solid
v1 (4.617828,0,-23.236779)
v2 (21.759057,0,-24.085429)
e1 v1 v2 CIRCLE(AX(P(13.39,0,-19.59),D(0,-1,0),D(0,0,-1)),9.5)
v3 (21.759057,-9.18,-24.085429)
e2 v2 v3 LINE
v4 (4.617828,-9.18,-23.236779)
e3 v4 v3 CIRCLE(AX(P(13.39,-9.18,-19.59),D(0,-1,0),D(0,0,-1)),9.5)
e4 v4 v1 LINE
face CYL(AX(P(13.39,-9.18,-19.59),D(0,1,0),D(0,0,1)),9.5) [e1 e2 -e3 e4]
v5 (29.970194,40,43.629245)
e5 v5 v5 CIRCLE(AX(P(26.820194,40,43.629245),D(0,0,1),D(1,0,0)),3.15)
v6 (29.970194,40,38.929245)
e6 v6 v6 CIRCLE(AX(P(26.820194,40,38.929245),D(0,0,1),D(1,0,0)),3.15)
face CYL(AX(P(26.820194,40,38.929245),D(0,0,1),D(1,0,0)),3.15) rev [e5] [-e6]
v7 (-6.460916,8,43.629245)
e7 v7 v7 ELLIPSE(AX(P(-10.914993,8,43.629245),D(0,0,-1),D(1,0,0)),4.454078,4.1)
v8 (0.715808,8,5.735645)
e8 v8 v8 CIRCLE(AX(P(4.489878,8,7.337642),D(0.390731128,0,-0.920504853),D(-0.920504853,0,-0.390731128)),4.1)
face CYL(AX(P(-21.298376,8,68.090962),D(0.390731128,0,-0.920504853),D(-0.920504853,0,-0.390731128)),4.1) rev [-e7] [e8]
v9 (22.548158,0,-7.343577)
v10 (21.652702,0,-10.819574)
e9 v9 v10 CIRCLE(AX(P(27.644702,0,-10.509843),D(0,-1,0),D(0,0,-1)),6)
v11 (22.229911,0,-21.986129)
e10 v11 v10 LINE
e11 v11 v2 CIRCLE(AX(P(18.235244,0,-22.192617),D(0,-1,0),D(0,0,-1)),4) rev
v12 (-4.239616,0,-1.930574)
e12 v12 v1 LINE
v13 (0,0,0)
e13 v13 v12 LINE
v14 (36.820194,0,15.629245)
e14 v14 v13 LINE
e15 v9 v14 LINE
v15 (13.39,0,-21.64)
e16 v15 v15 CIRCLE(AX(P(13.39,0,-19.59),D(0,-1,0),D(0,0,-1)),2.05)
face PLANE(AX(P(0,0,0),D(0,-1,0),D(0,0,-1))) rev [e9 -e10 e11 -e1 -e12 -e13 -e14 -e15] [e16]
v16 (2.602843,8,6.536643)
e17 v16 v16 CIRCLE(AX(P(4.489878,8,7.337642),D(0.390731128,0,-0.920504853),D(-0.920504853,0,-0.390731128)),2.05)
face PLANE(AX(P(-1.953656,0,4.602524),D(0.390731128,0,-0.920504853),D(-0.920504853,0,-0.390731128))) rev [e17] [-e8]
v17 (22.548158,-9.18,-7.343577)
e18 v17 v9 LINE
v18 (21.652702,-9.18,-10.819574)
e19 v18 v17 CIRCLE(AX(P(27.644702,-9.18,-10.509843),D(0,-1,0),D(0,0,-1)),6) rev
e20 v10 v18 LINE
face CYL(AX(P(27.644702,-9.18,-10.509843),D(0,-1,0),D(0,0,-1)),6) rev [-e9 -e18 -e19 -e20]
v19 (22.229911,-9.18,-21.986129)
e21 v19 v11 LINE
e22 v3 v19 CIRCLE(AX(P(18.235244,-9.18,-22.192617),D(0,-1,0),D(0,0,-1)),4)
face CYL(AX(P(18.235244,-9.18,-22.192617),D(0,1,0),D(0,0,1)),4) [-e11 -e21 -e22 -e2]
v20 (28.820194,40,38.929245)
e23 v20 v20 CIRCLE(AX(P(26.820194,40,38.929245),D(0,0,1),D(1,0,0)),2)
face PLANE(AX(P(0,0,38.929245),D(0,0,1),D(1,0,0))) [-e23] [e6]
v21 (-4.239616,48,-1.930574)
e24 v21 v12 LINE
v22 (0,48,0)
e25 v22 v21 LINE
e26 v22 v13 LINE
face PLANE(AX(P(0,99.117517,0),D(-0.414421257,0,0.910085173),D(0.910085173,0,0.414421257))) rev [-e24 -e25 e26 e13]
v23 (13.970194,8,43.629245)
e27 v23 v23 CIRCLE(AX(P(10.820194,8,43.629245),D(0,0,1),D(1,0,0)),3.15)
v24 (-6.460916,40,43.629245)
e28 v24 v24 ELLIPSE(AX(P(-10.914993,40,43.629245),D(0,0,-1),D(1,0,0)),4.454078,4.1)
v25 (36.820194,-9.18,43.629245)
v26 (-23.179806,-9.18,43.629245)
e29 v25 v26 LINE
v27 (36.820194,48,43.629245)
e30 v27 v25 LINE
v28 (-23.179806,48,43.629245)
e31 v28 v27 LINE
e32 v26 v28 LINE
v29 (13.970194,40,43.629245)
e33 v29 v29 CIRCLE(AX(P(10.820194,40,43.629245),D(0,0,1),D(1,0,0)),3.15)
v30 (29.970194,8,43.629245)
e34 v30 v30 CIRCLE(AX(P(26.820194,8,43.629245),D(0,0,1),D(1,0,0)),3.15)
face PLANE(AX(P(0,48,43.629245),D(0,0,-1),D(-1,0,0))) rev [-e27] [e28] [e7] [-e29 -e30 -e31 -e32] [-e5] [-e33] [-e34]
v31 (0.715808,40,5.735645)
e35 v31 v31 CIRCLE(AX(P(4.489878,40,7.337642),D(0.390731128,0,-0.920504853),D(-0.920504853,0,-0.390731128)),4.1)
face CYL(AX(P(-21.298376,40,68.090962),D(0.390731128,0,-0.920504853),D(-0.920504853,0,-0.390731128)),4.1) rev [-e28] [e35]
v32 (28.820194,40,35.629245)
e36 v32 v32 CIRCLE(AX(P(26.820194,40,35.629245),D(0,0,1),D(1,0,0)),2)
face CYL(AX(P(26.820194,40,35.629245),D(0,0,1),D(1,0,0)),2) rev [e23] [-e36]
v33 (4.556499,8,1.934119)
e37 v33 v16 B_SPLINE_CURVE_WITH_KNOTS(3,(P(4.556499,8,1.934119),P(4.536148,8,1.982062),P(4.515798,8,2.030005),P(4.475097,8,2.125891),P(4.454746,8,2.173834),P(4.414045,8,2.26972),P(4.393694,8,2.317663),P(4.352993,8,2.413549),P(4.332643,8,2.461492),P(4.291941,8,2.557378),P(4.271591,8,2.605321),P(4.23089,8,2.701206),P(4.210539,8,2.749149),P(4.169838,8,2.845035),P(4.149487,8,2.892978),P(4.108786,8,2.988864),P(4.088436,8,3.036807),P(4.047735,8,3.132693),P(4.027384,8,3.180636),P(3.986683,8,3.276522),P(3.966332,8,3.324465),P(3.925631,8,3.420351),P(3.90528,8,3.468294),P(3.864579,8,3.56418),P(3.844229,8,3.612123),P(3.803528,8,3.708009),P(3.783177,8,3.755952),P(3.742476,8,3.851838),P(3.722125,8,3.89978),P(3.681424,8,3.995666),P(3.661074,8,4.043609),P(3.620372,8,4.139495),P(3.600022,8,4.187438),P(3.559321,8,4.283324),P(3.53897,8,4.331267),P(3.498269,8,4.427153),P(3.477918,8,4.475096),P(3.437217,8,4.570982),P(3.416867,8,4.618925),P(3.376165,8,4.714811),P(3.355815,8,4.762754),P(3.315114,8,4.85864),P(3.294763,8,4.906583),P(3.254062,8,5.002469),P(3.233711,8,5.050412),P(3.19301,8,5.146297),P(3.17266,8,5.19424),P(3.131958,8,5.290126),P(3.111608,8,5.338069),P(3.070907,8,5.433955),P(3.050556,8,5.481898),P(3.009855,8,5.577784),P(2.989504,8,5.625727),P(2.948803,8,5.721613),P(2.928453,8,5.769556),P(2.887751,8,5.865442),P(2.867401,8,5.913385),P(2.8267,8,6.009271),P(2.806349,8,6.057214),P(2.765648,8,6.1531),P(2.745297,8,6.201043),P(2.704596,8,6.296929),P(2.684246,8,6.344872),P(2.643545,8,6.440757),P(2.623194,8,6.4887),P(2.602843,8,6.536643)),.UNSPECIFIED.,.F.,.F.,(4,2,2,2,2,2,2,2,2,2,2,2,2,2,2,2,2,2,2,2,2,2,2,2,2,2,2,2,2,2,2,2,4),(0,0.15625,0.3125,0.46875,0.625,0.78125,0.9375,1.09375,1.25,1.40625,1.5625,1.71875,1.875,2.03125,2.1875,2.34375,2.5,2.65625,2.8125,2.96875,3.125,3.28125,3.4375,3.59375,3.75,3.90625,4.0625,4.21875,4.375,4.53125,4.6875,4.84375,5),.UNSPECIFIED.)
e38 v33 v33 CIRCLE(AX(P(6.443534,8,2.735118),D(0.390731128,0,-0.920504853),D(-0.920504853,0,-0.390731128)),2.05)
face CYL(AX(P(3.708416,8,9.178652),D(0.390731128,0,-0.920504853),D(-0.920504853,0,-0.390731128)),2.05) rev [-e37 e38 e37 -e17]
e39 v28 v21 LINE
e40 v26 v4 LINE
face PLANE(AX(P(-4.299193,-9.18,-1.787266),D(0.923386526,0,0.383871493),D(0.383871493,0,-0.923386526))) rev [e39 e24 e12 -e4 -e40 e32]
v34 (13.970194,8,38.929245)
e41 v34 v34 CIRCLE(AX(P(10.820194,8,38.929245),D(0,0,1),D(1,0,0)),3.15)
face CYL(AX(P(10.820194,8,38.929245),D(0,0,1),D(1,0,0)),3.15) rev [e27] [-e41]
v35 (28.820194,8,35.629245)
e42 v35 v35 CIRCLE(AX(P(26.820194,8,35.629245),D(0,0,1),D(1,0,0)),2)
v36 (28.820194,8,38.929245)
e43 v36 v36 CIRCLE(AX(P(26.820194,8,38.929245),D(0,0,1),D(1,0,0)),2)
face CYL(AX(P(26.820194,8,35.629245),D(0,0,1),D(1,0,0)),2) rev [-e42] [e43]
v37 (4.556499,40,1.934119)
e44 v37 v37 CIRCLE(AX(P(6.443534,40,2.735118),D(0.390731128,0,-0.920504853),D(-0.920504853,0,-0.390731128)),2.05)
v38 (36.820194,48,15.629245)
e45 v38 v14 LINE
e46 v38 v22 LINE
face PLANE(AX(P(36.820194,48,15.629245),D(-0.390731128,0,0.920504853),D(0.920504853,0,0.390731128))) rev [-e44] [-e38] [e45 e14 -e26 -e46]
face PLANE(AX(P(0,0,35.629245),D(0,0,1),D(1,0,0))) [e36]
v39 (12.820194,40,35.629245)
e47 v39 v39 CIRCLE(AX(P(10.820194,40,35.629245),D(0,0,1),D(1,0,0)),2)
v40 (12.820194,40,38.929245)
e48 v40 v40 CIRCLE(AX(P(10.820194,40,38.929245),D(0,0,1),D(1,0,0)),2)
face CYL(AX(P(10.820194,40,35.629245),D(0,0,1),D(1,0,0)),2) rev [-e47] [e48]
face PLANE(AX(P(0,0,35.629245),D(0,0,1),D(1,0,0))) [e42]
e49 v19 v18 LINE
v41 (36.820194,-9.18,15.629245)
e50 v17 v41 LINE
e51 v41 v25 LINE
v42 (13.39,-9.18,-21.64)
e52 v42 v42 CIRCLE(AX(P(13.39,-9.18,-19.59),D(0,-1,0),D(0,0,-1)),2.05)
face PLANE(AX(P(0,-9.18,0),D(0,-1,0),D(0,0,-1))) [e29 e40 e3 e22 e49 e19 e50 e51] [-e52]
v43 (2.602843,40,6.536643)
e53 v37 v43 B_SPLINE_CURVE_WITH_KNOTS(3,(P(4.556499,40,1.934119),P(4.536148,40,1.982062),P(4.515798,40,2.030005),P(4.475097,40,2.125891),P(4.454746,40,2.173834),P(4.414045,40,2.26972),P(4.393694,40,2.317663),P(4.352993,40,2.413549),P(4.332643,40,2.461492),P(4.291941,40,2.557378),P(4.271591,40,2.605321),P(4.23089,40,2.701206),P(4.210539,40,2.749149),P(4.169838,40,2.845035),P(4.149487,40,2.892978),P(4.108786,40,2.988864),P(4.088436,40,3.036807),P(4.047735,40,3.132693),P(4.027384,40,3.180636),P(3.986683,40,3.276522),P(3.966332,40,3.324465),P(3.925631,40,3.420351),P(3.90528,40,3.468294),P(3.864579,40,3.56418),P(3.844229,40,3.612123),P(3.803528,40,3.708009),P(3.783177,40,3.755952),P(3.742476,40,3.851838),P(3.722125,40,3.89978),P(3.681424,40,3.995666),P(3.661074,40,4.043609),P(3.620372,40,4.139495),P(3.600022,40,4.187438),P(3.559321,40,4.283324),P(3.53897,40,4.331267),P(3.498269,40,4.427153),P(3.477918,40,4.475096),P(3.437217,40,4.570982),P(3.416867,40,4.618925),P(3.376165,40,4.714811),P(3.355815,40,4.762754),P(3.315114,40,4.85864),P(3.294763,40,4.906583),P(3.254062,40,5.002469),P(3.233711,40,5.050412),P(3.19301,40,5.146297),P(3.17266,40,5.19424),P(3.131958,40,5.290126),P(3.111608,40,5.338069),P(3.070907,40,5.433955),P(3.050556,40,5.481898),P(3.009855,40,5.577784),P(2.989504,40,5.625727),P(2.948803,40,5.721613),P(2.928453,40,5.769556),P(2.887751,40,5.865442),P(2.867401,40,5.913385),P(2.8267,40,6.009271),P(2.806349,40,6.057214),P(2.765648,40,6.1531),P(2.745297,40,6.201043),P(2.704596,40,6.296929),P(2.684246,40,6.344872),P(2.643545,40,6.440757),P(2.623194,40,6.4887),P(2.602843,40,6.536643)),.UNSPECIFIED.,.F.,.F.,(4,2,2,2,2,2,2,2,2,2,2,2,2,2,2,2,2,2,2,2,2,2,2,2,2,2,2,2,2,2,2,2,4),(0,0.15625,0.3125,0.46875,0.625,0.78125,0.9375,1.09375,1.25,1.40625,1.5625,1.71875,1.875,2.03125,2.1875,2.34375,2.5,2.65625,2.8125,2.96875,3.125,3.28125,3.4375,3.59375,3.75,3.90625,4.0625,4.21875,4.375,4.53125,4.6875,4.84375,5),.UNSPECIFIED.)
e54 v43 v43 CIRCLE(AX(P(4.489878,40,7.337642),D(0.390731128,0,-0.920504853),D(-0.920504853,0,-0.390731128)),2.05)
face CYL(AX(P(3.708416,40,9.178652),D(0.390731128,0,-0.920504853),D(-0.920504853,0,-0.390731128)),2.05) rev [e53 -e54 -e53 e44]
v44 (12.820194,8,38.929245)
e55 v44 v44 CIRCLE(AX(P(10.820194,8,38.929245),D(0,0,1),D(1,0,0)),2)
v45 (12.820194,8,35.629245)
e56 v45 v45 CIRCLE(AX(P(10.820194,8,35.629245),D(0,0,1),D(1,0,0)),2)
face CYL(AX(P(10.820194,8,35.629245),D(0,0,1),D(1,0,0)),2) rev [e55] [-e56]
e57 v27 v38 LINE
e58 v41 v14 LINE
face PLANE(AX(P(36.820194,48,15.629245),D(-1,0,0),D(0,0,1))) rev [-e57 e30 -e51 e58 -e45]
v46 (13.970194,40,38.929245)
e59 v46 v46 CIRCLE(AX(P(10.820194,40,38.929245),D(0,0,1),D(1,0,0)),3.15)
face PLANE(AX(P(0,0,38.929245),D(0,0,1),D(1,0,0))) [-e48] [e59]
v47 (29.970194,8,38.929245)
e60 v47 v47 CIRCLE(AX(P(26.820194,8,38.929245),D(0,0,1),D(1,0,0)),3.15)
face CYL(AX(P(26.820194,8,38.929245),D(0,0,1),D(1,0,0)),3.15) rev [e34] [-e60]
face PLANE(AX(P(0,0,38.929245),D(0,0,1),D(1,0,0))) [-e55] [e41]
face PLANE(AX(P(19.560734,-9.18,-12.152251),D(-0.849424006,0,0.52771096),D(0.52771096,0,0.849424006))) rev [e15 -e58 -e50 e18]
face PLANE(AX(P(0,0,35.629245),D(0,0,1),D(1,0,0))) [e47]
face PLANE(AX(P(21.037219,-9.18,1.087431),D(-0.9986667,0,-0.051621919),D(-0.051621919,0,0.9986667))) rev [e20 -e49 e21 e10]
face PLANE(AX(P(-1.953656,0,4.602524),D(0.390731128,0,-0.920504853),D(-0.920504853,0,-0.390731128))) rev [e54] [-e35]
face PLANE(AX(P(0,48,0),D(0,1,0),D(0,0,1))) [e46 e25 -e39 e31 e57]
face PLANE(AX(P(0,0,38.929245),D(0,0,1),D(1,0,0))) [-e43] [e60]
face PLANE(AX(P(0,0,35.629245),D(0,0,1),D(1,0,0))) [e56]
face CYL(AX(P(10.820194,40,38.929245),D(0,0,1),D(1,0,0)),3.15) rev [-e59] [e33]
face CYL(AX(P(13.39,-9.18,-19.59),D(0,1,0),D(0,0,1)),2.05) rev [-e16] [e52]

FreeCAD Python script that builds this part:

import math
import FreeCAD as App
import Part
import Sketcher
from FreeCAD import Vector
Q = App.Units.Quantity


def edges_at(feature, points):
    """Names of the edges that pass closest to the given points."""
    edges = feature.Shape.Edges
    near = lambda p: min(range(len(edges)), key=lambda i: edges[i].distToShape(Part.Vertex(*p))[0])
    return sorted({f"Edge{near(p) + 1}" for p in points})

doc = App.newDocument("Part")
body = doc.addObject("PartDesign::Body", "Body")

sketch1 = body.newObject("Sketcher::SketchObject", "Sketch")
sketch1.AttachmentSupport = (doc.getObject("XZ_Plane"), [""])
sketch1.MapMode = "FlatFace"
sketch1.addGeometry([
    Part.LineSegment(Vector(0, 0, 0), Vector(0, 44, 0)),
    Part.LineSegment(Vector(0, 44, 0), Vector(37, 44, 0)),
    Part.LineSegment(Vector(37, 44, 0), Vector(37, 16, 0)),
    Part.LineSegment(Vector(37, 16, 0), Vector(0, 0, 0)),
], False)
sketch1.addConstraint([
    Sketcher.Constraint("Coincident", 0, 2, 1, 1),
    Sketcher.Constraint("Coincident", 1, 2, 2, 1),
    Sketcher.Constraint("Coincident", 2, 2, 3, 1),
    Sketcher.Constraint("Coincident", 3, 2, 0, 1),
    Sketcher.Constraint("Vertical", 0),
    Sketcher.Constraint("Horizontal", 1),
    Sketcher.Constraint("Vertical", 2),
    Sketcher.Constraint("Coincident", 3, 2, -1, 1),
    Sketcher.Constraint("DistanceY", 2, 2, 2, 1, 28.0),
    Sketcher.Constraint("Angle", 3, Q("-157 deg")),
    Sketcher.Constraint("Distance", 3, 40.0),
])
pad1 = body.newObject("PartDesign::Pad", "Pad")
pad1.Profile = sketch1
pad1.Length = 48
pad1.Reversed = True

sketch2 = body.newObject("Sketcher::SketchObject", "Sketch001")
sketch2.AttachmentSupport = (doc.getObject("XY_Plane"), [""])
sketch2.MapMode = "FlatFace"
sketch2.AttachmentOffset = App.Placement(Vector(0, 0, 43.629245), App.Rotation())
sketch2.addGeometry([
    Part.Circle(Vector(10.8, 40, 0), Vector(0, 0, 1), 3.1),
    Part.Circle(Vector(26.8, 40, 0), Vector(0, 0, 1), 3.1),
    Part.Circle(Vector(26.8, 8, 0), Vector(0, 0, 1), 3.1),
    Part.Circle(Vector(10.8, 8, 0), Vector(0, 0, 1), 3.1),
], False)
sketch2.addConstraint([
    Sketcher.Constraint("Equal", 0, 1),
    Sketcher.Constraint("Equal", 1, 2),
    Sketcher.Constraint("Equal", 2, 3),
    Sketcher.Constraint("Horizontal", 0, 3, 1, 3),
    Sketcher.Constraint("Horizontal", 2, 3, 3, 3),
    Sketcher.Constraint("Vertical", 1, 3, 2, 3),
    Sketcher.Constraint("Vertical", 0, 3, 3, 3),
    Sketcher.Constraint("Diameter", 0, 6.3),
    Sketcher.Constraint("DistanceY", -1, 1, 0, 3, 40.0),
    Sketcher.Constraint("DistanceY", -1, 1, 2, 3, 8.0),
    Sketcher.Constraint("DistanceX", 0, 3, 1, 3, 16.0),
    Sketcher.Constraint("DistanceX", -1, 1, 0, 3, 10.820194),
])
pocket1 = body.newObject("PartDesign::Pocket", "Pocket")
pocket1.Profile = sketch2
pocket1.Length = 4.7

sketch3 = body.newObject("Sketcher::SketchObject", "Sketch002")
sketch3.AttachmentSupport = (doc.getObject("XZ_Plane"), [""])
sketch3.MapMode = "FlatFace"
sketch3.addGeometry([
    Part.LineSegment(Vector(21.6, -8.9, 0), Vector(36.8, 15.6, 0)),
    Part.LineSegment(Vector(36.8, 15.6, 0), Vector(36.8, 43.6, 0)),
    Part.LineSegment(Vector(36.8, 43.6, 0), Vector(-23.2, 43.6, 0)),
    Part.LineSegment(Vector(-23.2, 43.6, 0), Vector(4.6, -23.2, 0)),
    Part.ArcOfCircle(Part.Circle(Vector(13.4, -19.6, 0), Vector(0, 0, 1), 9.5), math.radians(-157), math.radians(-21)),
    Part.LineSegment(Vector(22.3, -22.9, 0), Vector(21.6, -8.9, 0)),
    Part.Circle(Vector(13.4, -19.6, 0), Vector(0, 0, 1), 2),
], False)
sketch3.addConstraint([
    Sketcher.Constraint("Coincident", 0, 2, 1, 1),
    Sketcher.Constraint("Coincident", 1, 2, 2, 1),
    Sketcher.Constraint("Coincident", 2, 2, 3, 1),
    Sketcher.Constraint("Tangent", 3, 2, 4, 1),
    Sketcher.Constraint("Coincident", 4, 2, 5, 1),
    Sketcher.Constraint("Coincident", 5, 2, 0, 1),
    Sketcher.Constraint("Vertical", 1),
    Sketcher.Constraint("Horizontal", 2),
    Sketcher.Constraint("Coincident", 6, 3, 4, 3),
    Sketcher.Constraint("Diameter", 6, 4.1),
    Sketcher.Constraint("Radius", 4, 9.5),
    Sketcher.Constraint("DistanceX", 2, 2, 2, 1, 60.0),
    Sketcher.Constraint("DistanceY", 1, 1, 1, 2, 28.0),
    Sketcher.Constraint("DistanceY", 4, 2, 5, 2, 14.0),
    Sketcher.Constraint("DistanceX", -1, 1, 4, 3, 13.39),
    Sketcher.Constraint("DistanceY", 4, 3, -1, 1, 19.59),
    Sketcher.Constraint("Distance", 5, 14.018691),
    Sketcher.Constraint("DistanceX", -1, 1, 3, 2, 4.617828),
    Sketcher.Constraint("DistanceX", -1, 1, 4, 2, 22.27928),
    Sketcher.Constraint("DistanceY", 4, 2, 0, 2, 38.570469),
])
pad2 = body.newObject("PartDesign::Pad", "Pad001")
pad2.Profile = sketch3
pad2.Length = 9.18

sketch4 = body.newObject("Sketcher::SketchObject", "Sketch003")
sketch4.AttachmentSupport = (doc.getObject("XY_Plane"), [""])
sketch4.MapMode = "FlatFace"
sketch4.AttachmentOffset = App.Placement(Vector(0, 0, 43.629245), App.Rotation())
sketch4.addGeometry([
    Part.Circle(Vector(10.8, 40, 0), Vector(0, 0, 1), 2),
    Part.Circle(Vector(26.8, 40, 0), Vector(0, 0, 1), 2),
    Part.Circle(Vector(26.8, 8, 0), Vector(0, 0, 1), 2),
    Part.Circle(Vector(10.8, 8, 0), Vector(0, 0, 1), 2),
], False)
sketch4.addConstraint([
    Sketcher.Constraint("Equal", 0, 1),
    Sketcher.Constraint("Equal", 1, 2),
    Sketcher.Constraint("Equal", 2, 3),
    Sketcher.Constraint("Horizontal", 0, 3, 1, 3),
    Sketcher.Constraint("Horizontal", 2, 3, 3, 3),
    Sketcher.Constraint("Vertical", 1, 3, 2, 3),
    Sketcher.Constraint("Vertical", 0, 3, 3, 3),
    Sketcher.Constraint("Diameter", 0, 4.0),
    Sketcher.Constraint("DistanceY", -1, 1, 0, 3, 40.0),
    Sketcher.Constraint("DistanceY", -1, 1, 2, 3, 8.0),
    Sketcher.Constraint("DistanceX", 0, 3, 1, 3, 16.0),
    Sketcher.Constraint("DistanceX", -1, 1, 0, 3, 10.820194),
])
pocket2 = body.newObject("PartDesign::Pocket", "Pocket001")
pocket2.Profile = sketch4
pocket2.Length = 8
doc.recompute()

fillet = body.newObject("PartDesign::Fillet", "Fillet")
fillet.Base = (pocket2, edges_at(pocket2, [(22.279, -4.59, -22.941)]))
fillet.Radius = 4
doc.recompute()

fillet2 = body.newObject("PartDesign::Fillet", "Fillet001")
fillet2.Base = (fillet, edges_at(fillet, [(21.556, -4.59, -8.941)]))
fillet2.Radius = 6

sketch5 = body.newObject("Sketcher::SketchObject", "Sketch004")
sketch5.AttachmentSupport = (doc.getObject("XZ_Plane"), [""])
sketch5.MapMode = "FlatFace"
sketch5.addGeometry([
    Part.LineSegment(Vector(0, 0, 0), Vector(0, 43.6, 0)),
    Part.LineSegment(Vector(0, 43.6, 0), Vector(-23.2, 43.6, 0)),
    Part.LineSegment(Vector(-23.2, 43.6, 0), Vector(-4.2, -1.9, 0)),
    Part.LineSegment(Vector(-4.2, -1.9, 0), Vector(0, 0, 0)),
], False)
sketch5.addConstraint([
    Sketcher.Constraint("Coincident", 0, 2, 1, 1),
    Sketcher.Constraint("Coincident", 1, 2, 2, 1),
    Sketcher.Constraint("Coincident", 2, 2, 3, 1),
    Sketcher.Constraint("Coincident", 3, 2, 0, 1),
    Sketcher.Constraint("Vertical", 0),
    Sketcher.Constraint("Horizontal", 1),
    Sketcher.Constraint("Coincident", 3, 2, -1, 1),
    Sketcher.Constraint("DistanceX", 1, 2, 1, 1, 23.179806),
    Sketcher.Constraint("DistanceY", 0, 1, 0, 2, 43.629245),
    Sketcher.Constraint("DistanceY", 2, 2, 0, 2, 45.559819),
    Sketcher.Constraint("DistanceX", 1, 2, 2, 2, 18.94019),
])
pad3 = body.newObject("PartDesign::Pad", "Pad002")
pad3.Profile = sketch5
pad3.Length = 48
pad3.Reversed = True

sketch6 = body.newObject("Sketcher::SketchObject", "Sketch005")
sketch6.Placement = App.Placement(Vector(-1.953656, 0, 4.602524), App.Rotation(Vector(-0.920504853, 0, -0.390731128), Vector(0, 0.999999999, 0), Vector(0.390731128, 0, -0.920504853), "ZXY"))
sketch6.addGeometry([
    Part.Circle(Vector(-7, 40, 0), Vector(0, 0, 1), 4.1),
    Part.Circle(Vector(-7, 8, 0), Vector(0, 0, 1), 4.1),
], False)
sketch6.addConstraint([
    Sketcher.Constraint("Equal", 0, 1),
    Sketcher.Constraint("Vertical", 0, 3, 1, 3),
    Sketcher.Constraint("Diameter", 0, 8.2),
    Sketcher.Constraint("DistanceX", 0, 3, -1, 1, 7.0),
    Sketcher.Constraint("DistanceY", -1, 1, 0, 3, 40.0),
    Sketcher.Constraint("DistanceY", -1, 1, 1, 3, 8.0),
])
pocket3 = body.newObject("PartDesign::Pocket", "Pocket002")
pocket3.Profile = sketch6
pocket3.Length = 66

sketch7 = body.newObject("Sketcher::SketchObject", "Sketch006")
sketch7.Placement = App.Placement(Vector(0, 0, 0), App.Rotation(Vector(-0.920504853, 0, -0.390731128), Vector(0, 0.999999999, 0), Vector(0.390731128, 0, -0.920504853), "ZXY"))
sketch7.addGeometry([
    Part.Circle(Vector(-7, 40, 0), Vector(0, 0, 1), 2),
    Part.Circle(Vector(-7, 8, 0), Vector(0, 0, 1), 2),
], False)
sketch7.addConstraint([
    Sketcher.Constraint("Equal", 0, 1),
    Sketcher.Constraint("Vertical", 0, 3, 1, 3),
    Sketcher.Constraint("Diameter", 0, 4.1),
    Sketcher.Constraint("DistanceX", 0, 3, -1, 1, 7.0),
    Sketcher.Constraint("DistanceY", -1, 1, 0, 3, 40.0),
    Sketcher.Constraint("DistanceY", -1, 1, 1, 3, 8.0),
])
pocket4 = body.newObject("PartDesign::Pocket", "Pocket003")
pocket4.Profile = sketch7
pocket4.Length = 7

doc.recompute()
